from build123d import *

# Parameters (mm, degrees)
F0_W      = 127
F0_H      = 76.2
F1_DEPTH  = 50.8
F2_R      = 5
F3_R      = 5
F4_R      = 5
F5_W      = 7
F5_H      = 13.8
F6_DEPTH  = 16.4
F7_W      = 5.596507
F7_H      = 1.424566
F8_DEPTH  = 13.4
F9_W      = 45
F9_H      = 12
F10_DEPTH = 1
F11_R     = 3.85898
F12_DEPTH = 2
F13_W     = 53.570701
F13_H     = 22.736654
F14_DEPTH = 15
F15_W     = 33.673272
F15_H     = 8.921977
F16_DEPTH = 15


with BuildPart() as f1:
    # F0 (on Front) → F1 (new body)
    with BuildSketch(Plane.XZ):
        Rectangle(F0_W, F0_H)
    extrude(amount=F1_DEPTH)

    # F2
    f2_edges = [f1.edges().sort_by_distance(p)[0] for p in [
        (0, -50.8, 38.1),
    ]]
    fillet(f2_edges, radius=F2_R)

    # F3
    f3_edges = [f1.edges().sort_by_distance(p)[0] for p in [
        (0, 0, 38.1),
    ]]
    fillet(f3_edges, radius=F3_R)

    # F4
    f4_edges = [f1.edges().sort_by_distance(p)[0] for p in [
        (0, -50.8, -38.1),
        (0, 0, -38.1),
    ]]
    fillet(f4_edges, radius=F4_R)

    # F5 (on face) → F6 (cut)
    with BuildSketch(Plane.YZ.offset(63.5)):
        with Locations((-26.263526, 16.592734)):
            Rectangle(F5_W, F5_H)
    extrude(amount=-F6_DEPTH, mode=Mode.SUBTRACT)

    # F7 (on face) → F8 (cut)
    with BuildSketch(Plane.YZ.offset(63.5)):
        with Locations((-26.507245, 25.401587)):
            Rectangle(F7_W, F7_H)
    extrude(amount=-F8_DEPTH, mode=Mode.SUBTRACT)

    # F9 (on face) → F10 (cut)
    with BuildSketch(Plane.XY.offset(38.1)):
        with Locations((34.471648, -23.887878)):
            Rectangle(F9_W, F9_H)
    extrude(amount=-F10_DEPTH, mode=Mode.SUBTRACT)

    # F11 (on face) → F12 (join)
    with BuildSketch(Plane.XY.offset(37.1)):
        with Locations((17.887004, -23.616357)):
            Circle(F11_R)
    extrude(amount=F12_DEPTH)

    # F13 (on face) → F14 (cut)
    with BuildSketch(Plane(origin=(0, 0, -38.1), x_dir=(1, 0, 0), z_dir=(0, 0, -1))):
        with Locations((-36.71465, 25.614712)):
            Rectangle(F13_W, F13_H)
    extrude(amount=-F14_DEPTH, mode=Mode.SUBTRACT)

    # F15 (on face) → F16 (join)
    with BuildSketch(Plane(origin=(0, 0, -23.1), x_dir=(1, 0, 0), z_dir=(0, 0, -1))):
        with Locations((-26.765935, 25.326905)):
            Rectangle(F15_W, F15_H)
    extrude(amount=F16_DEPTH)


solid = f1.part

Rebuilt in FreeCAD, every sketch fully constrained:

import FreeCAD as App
import Part
import Sketcher


def edges_at(feature, points):
    """Names of the edges that pass closest to the given points."""
    edges = feature.Shape.Edges
    near = lambda p: min(range(len(edges)), key=lambda i: edges[i].distToShape(Part.Vertex(*p))[0])
    return sorted({f"Edge{near(p) + 1}" for p in points})

doc = App.newDocument("Part")
body = doc.addObject("PartDesign::Body", "Body")

# Sketch on XZ plane
sketch1 = body.newObject("Sketcher::SketchObject", "Sketch")
sketch1.AttachmentSupport = (doc.getObject("XZ_Plane"), [""])
sketch1.MapMode = "FlatFace"
sketch1.addGeometry([
    Part.LineSegment(App.Vector(-64, 38, 0), App.Vector(-64, -38, 0)),
    Part.LineSegment(App.Vector(-64, -38, 0), App.Vector(64, -38, 0)),
    Part.LineSegment(App.Vector(64, -38, 0), App.Vector(64, 38, 0)),
    Part.LineSegment(App.Vector(64, 38, 0), App.Vector(-64, 38, 0)),
], False)
sketch1.addConstraint([
    Sketcher.Constraint("Coincident", 0, 2, 1, 1),
    Sketcher.Constraint("Coincident", 1, 2, 2, 1),
    Sketcher.Constraint("Coincident", 2, 2, 3, 1),
    Sketcher.Constraint("Coincident", 3, 2, 0, 1),
    Sketcher.Constraint("Vertical", 0),
    Sketcher.Constraint("Horizontal", 1),
    Sketcher.Constraint("Vertical", 2),
    Sketcher.Constraint("Horizontal", 3),
    Sketcher.Constraint("Symmetric", 0, 2, 2, 2, -1, 1),
    Sketcher.Constraint("DistanceX", 1, 1, 1, 2, 127.0),
    Sketcher.Constraint("DistanceY", 0, 2, 0, 1, 76.2),
])
pad1 = body.newObject("PartDesign::Pad", "Pad")
pad1.Profile = sketch1
pad1.Length = 50.8
doc.recompute()

fillet = body.newObject("PartDesign::Fillet", "Fillet")
fillet.Base = (pad1, edges_at(pad1, [(0, -50.8, 38.1)]))
fillet.Radius = 5
doc.recompute()

fillet2 = body.newObject("PartDesign::Fillet", "Fillet001")
fillet2.Base = (fillet, edges_at(fillet, [(0, 0, 38.1)]))
fillet2.Radius = 5
doc.recompute()

fillet3 = body.newObject("PartDesign::Fillet", "Fillet002")
fillet3.Base = (fillet2, edges_at(fillet2, [(0, -50.8, -38.1), (0, 0, -38.1)]))
fillet3.Radius = 5

# Sketch on YZ plane
sketch2 = body.newObject("Sketcher::SketchObject", "Sketch001")
sketch2.AttachmentSupport = (doc.getObject("YZ_Plane"), [""])
sketch2.MapMode = "FlatFace"
sketch2.AttachmentOffset = App.Placement(App.Vector(0, 0, 63.5), App.Rotation())
sketch2.addGeometry([
    Part.LineSegment(App.Vector(-30, 23, 0), App.Vector(-30, 10, 0)),
    Part.LineSegment(App.Vector(-30, 10, 0), App.Vector(-23, 10, 0)),
    Part.LineSegment(App.Vector(-23, 10, 0), App.Vector(-23, 23, 0)),
    Part.LineSegment(App.Vector(-23, 23, 0), App.Vector(-30, 23, 0)),
], False)
sketch2.addConstraint([
    Sketcher.Constraint("Coincident", 0, 2, 1, 1),
    Sketcher.Constraint("Coincident", 1, 2, 2, 1),
    Sketcher.Constraint("Coincident", 2, 2, 3, 1),
    Sketcher.Constraint("Coincident", 3, 2, 0, 1),
    Sketcher.Constraint("Vertical", 0),
    Sketcher.Constraint("Horizontal", 1),
    Sketcher.Constraint("Vertical", 2),
    Sketcher.Constraint("Horizontal", 3),
    Sketcher.Constraint("DistanceX", 1, 1, 1, 2, 7.0),
    Sketcher.Constraint("DistanceY", 0, 2, 0, 1, 13.8),
    Sketcher.Constraint("DistanceX", 0, 2, -1, 1, 29.763526),
    Sketcher.Constraint("DistanceY", -1, 1, 0, 2, 9.692734),
])
pocket1 = body.newObject("PartDesign::Pocket", "Pocket")
pocket1.Profile = sketch2
pocket1.Length = 16.4

# Sketch on YZ plane
sketch3 = body.newObject("Sketcher::SketchObject", "Sketch002")
sketch3.AttachmentSupport = (doc.getObject("YZ_Plane"), [""])
sketch3.MapMode = "FlatFace"
sketch3.AttachmentOffset = App.Placement(App.Vector(0, 0, 63.5), App.Rotation())
sketch3.addGeometry([
    Part.LineSegment(App.Vector(-29.3, 26.1, 0), App.Vector(-29.3, 24.7, 0)),
    Part.LineSegment(App.Vector(-29.3, 24.7, 0), App.Vector(-23.7, 24.7, 0)),
    Part.LineSegment(App.Vector(-23.7, 24.7, 0), App.Vector(-23.7, 26.1, 0)),
    Part.LineSegment(App.Vector(-23.7, 26.1, 0), App.Vector(-29.3, 26.1, 0)),
], False)
sketch3.addConstraint([
    Sketcher.Constraint("Coincident", 0, 2, 1, 1),
    Sketcher.Constraint("Coincident", 1, 2, 2, 1),
    Sketcher.Constraint("Coincident", 2, 2, 3, 1),
    Sketcher.Constraint("Coincident", 3, 2, 0, 1),
    Sketcher.Constraint("Vertical", 0),
    Sketcher.Constraint("Horizontal", 1),
    Sketcher.Constraint("Vertical", 2),
    Sketcher.Constraint("Horizontal", 3),
    Sketcher.Constraint("DistanceX", 0, 2, -1, 1, 29.305498),
    Sketcher.Constraint("DistanceX", 1, 1, 1, 2, 5.596507),
    Sketcher.Constraint("DistanceY", 0, 2, 0, 1, 1.424566),
    Sketcher.Constraint("DistanceY", -1, 1, 2, 2, 26.11387),
])
pocket2 = body.newObject("PartDesign::Pocket", "Pocket001")
pocket2.Profile = sketch3
pocket2.Length = 13.4

# Sketch on XY plane
sketch4 = body.newObject("Sketcher::SketchObject", "Sketch003")
sketch4.AttachmentSupport = (doc.getObject("XY_Plane"), [""])
sketch4.MapMode = "FlatFace"
sketch4.AttachmentOffset = App.Placement(App.Vector(0, 0, 38.1), App.Rotation())
sketch4.addGeometry([
    Part.LineSegment(App.Vector(12, -18, 0), App.Vector(12, -30, 0)),
    Part.LineSegment(App.Vector(12, -30, 0), App.Vector(57, -30, 0)),
    Part.LineSegment(App.Vector(57, -30, 0), App.Vector(57, -18, 0)),
    Part.LineSegment(App.Vector(57, -18, 0), App.Vector(12, -18, 0)),
], False)
sketch4.addConstraint([
    Sketcher.Constraint("Coincident", 0, 2, 1, 1),
    Sketcher.Constraint("Coincident", 1, 2, 2, 1),
    Sketcher.Constraint("Coincident", 2, 2, 3, 1),
    Sketcher.Constraint("Coincident", 3, 2, 0, 1),
    Sketcher.Constraint("Vertical", 0),
    Sketcher.Constraint("Horizontal", 1),
    Sketcher.Constraint("Vertical", 2),
    Sketcher.Constraint("Horizontal", 3),
    Sketcher.Constraint("DistanceX", 1, 1, 1, 2, 45.0),
    Sketcher.Constraint("DistanceY", 0, 2, 0, 1, 12.0),
    Sketcher.Constraint("DistanceY", 0, 2, -1, 1, 29.887878),
    Sketcher.Constraint("DistanceX", -1, 1, 1, 2, 56.971648),
])
pocket3 = body.newObject("PartDesign::Pocket", "Pocket002")
pocket3.Profile = sketch4
pocket3.Length = 1

# Sketch on XY plane
sketch5 = body.newObject("Sketcher::SketchObject", "Sketch004")
sketch5.AttachmentSupport = (doc.getObject("XY_Plane"), [""])
sketch5.MapMode = "FlatFace"
sketch5.AttachmentOffset = App.Placement(App.Vector(0, 0, 37.1), App.Rotation())
sketch5.addGeometry(Part.Circle(App.Vector(17.9, -23.6, 0), App.Vector(0, 0, 1), 3.9), False)
sketch5.addConstraint([
    Sketcher.Constraint("Diameter", 0, 7.71796),
    Sketcher.Constraint("DistanceX", -1, 1, 0, 3, 17.887004),
    Sketcher.Constraint("DistanceY", 0, 3, -1, 1, 23.616357),
])
pad2 = body.newObject("PartDesign::Pad", "Pad001")
pad2.Profile = sketch5
pad2.Length = 2

# Sketch on XY plane
sketch6 = body.newObject("Sketcher::SketchObject", "Sketch005")
sketch6.AttachmentSupport = (doc.getObject("XY_Plane"), [""])
sketch6.MapMode = "FlatFace"
sketch6.AttachmentOffset = App.Placement(App.Vector(0, 0, -38.1), App.Rotation())
sketch6.addGeometry([
    Part.LineSegment(App.Vector(-64, -37, 0), App.Vector(-64, -14, 0)),
    Part.LineSegment(App.Vector(-64, -14, 0), App.Vector(-10, -14, 0)),
    Part.LineSegment(App.Vector(-10, -14, 0), App.Vector(-10, -37, 0)),
    Part.LineSegment(App.Vector(-10, -37, 0), App.Vector(-64, -37, 0)),
], False)
sketch6.addConstraint([
    Sketcher.Constraint("Coincident", 0, 2, 1, 1),
    Sketcher.Constraint("Coincident", 1, 2, 2, 1),
    Sketcher.Constraint("Coincident", 2, 2, 3, 1),
    Sketcher.Constraint("Coincident", 3, 2, 0, 1),
    Sketcher.Constraint("Vertical", 0),
    Sketcher.Constraint("Horizontal", 1),
    Sketcher.Constraint("Vertical", 2),
    Sketcher.Constraint("Horizontal", 3),
    Sketcher.Constraint("DistanceX", 0, 2, -1, 1, 63.5),
    Sketcher.Constraint("DistanceX", 1, 1, 1, 2, 53.570701),
    Sketcher.Constraint("DistanceY", 0, 1, 0, 2, 22.736654),
    Sketcher.Constraint("DistanceY", 2, 2, -1, 1, 36.983039),
])
pocket4 = body.newObject("PartDesign::Pocket", "Pocket003")
pocket4.Profile = sketch6
pocket4.Length = 15
pocket4.Reversed = True

# Sketch on XY plane
sketch7 = body.newObject("Sketcher::SketchObject", "Sketch006")
sketch7.AttachmentSupport = (doc.getObject("XY_Plane"), [""])
sketch7.MapMode = "FlatFace"
sketch7.AttachmentOffset = App.Placement(App.Vector(0, 0, -23.1), App.Rotation())
sketch7.addGeometry([
    Part.LineSegment(App.Vector(-44, -30, 0), App.Vector(-44, -21, 0)),
    Part.LineSegment(App.Vector(-44, -21, 0), App.Vector(-10, -21, 0)),
    Part.LineSegment(App.Vector(-10, -21, 0), App.Vector(-10, -30, 0)),
    Part.LineSegment(App.Vector(-10, -30, 0), App.Vector(-44, -30, 0)),
], False)
sketch7.addConstraint([
    Sketcher.Constraint("Coincident", 0, 2, 1, 1),
    Sketcher.Constraint("Coincident", 1, 2, 2, 1),
    Sketcher.Constraint("Coincident", 2, 2, 3, 1),
    Sketcher.Constraint("Coincident", 3, 2, 0, 1),
    Sketcher.Constraint("Vertical", 0),
    Sketcher.Constraint("Horizontal", 1),
    Sketcher.Constraint("Vertical", 2),
    Sketcher.Constraint("Horizontal", 3),
    Sketcher.Constraint("DistanceX", 1, 1, 1, 2, 33.673272),
    Sketcher.Constraint("DistanceX", 1, 2, -1, 1, 9.929299),
    Sketcher.Constraint("DistanceY", 0, 1, 0, 2, 8.921977),
    Sketcher.Constraint("DistanceY", 0, 2, -1, 1, 20.865917),
])
pad3 = body.newObject("PartDesign::Pad", "Pad002")
pad3.Profile = sketch7
pad3.Length = 15
pad3.Reversed = True

doc.recompute()
